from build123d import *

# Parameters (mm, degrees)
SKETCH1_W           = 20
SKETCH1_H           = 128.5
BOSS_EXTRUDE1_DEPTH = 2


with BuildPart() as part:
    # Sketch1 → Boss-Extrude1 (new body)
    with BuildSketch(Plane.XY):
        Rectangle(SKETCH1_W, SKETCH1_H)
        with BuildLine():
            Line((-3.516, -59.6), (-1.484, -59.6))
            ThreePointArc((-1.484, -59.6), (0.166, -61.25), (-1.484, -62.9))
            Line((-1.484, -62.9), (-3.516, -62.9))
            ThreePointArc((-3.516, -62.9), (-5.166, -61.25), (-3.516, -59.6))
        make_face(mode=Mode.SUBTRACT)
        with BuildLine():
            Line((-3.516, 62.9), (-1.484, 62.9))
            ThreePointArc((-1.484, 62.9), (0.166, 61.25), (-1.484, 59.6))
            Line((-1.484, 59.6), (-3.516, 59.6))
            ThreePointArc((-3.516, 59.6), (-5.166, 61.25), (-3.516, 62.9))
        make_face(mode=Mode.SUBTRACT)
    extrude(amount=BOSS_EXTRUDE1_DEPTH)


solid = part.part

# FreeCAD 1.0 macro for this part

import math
import FreeCAD as App
import Part
import Sketcher
from FreeCAD import Vector
Q = App.Units.Quantity


def add_polygon(sketch, points):
    """Adds a closed chain of lines whose ends are joined by coincident constraints."""
    first, n = sketch.GeometryCount, len(points)
    for a, b in zip(points, points[1:] + points[:1]):
        sketch.addGeometry(Part.LineSegment(App.Vector(*a, 0), App.Vector(*b, 0)), False)
    for i in range(n):
        sketch.addConstraint(Sketcher.Constraint("Coincident", first + i, 2, first + (i + 1) % n, 1))

doc = App.newDocument("Part")
body = doc.addObject("PartDesign::Body", "Body")

sketch1 = doc.addObject("Sketcher::SketchObject", "Sketch")
body.addObject(sketch1)
sketch1.AttachmentSupport = (doc.XY_Plane, [""])
sketch1.MapMode = "FlatFace"
add_polygon(sketch1, [(-10, 64.2), (-10, -64.2), (10, -64.2), (10, 64.2)])
sketch1.addGeometry(Part.ArcOfCircle(Part.Circle(Vector(-3.5, -61.2, 0), Vector(0, 0, 1), 1.6), math.radians(90), math.radians(270)), False)
sketch1.addGeometry(Part.LineSegment(Vector(-3.5, -59.6, 0), Vector(-1.5, -59.6, 0)), False)
sketch1.addGeometry(Part.ArcOfCircle(Part.Circle(Vector(-1.5, -61.2, 0), Vector(0, 0, 1), 1.6), math.radians(-90), math.radians(90)), False)
sketch1.addGeometry(Part.LineSegment(Vector(-1.5, -62.9, 0), Vector(-3.5, -62.9, 0)), False)
sketch1.addGeometry(Part.ArcOfCircle(Part.Circle(Vector(-3.5, 61.2, 0), Vector(0, 0, 1), 1.6), math.radians(90), math.radians(270)), False)
sketch1.addGeometry(Part.LineSegment(Vector(-3.5, 62.9, 0), Vector(-1.5, 62.9, 0)), False)
sketch1.addGeometry(Part.ArcOfCircle(Part.Circle(Vector(-1.5, 61.2, 0), Vector(0, 0, 1), 1.6), math.radians(-90), math.radians(90)), False)
sketch1.addGeometry(Part.LineSegment(Vector(-1.5, 59.6, 0), Vector(-3.5, 59.6, 0)), False)
sketch1.addConstraint([
    Sketcher.Constraint("Tangent", 4, 1, 5, 1),
    Sketcher.Constraint("Tangent", 5, 2, 6, 2),
    Sketcher.Constraint("Tangent", 6, 1, 7, 1),
    Sketcher.Constraint("Tangent", 7, 2, 4, 2),
    Sketcher.Constraint("Tangent", 8, 1, 9, 1),
    Sketcher.Constraint("Tangent", 9, 2, 10, 2),
    Sketcher.Constraint("Tangent", 10, 1, 11, 1),
    Sketcher.Constraint("Tangent", 11, 2, 8, 2),
    Sketcher.Constraint("Vertical", 0),
    Sketcher.Constraint("Horizontal", 1),
    Sketcher.Constraint("Vertical", 2),
    Sketcher.Constraint("Horizontal", 3),
    Sketcher.Constraint("Horizontal", 5),
    Sketcher.Constraint("Horizontal", 7),
    Sketcher.Constraint("Horizontal", 9),
    Sketcher.Constraint("Horizontal", 11),
    Sketcher.Constraint("Equal", 6, 8),
    Sketcher.Constraint("Symmetric", 0, 2, 2, 2, -1, 1),
    Sketcher.Constraint("Symmetric", 4, 3, 8, 3, -1),
    Sketcher.Constraint("Vertical", 6, 3, 10, 3),
    Sketcher.Constraint("DistanceX", 1, 1, 1, 2, Q("20 mm")),
    Sketcher.Constraint("Radius", 4, Q("1.65 mm")),
    Sketcher.Constraint("DistanceY", 0, 2, 0, 1, Q("128.5 mm")),
    Sketcher.Constraint("DistanceY", 0, 2, 4, 3, Q("3 mm")),
    Sketcher.Constraint("DistanceX", 5, 1, 5, 2, Q("2.032 mm")),
    Sketcher.Constraint("DistanceX", 4, 3, -1, 1, Q("3.516 mm")),
])
pad1 = doc.addObject("PartDesign::Pad", "Pad")
body.addObject(pad1)
pad1.Profile = sketch1
pad1.Length = 2

doc.recompute()
